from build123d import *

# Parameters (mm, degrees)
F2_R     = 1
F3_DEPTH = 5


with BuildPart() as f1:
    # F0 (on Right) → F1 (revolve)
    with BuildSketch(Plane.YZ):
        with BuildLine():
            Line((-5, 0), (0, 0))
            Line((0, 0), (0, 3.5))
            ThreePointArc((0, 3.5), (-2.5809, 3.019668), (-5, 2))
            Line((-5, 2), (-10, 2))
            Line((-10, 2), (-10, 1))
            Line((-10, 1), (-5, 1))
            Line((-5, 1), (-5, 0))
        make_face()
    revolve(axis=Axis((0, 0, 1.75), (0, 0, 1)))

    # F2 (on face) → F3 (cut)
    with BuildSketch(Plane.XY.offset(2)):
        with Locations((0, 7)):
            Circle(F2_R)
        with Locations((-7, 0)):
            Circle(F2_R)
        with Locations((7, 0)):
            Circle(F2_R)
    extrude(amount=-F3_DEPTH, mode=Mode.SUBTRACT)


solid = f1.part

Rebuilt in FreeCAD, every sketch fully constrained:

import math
import FreeCAD as App
import Part
import Sketcher
from FreeCAD import Vector

doc = App.newDocument("Part")
body = doc.addObject("PartDesign::Body", "Body")

# Sketch on YZ plane
sketch1 = body.newObject("Sketcher::SketchObject", "Sketch")
sketch1.AttachmentSupport = (doc.getObject("YZ_Plane"), [""])
sketch1.MapMode = "FlatFace"
sketch1.addGeometry(Part.LineSegment(Vector(-5, 0, 0), Vector(0, 0, 0)), False)
sketch1.addGeometry(Part.LineSegment(Vector(0, 0, 0), Vector(0, 3.5, 0)), False)
sketch1.addGeometry(Part.ArcOfCircle(Part.Circle(Vector(0.9, -8.7, 0), Vector(0, 0, 1), 12.2), math.radians(94), math.radians(119)), False)
sketch1.addGeometry(Part.LineSegment(Vector(-5, 2, 0), Vector(-10, 2, 0)), False)
sketch1.addGeometry(Part.LineSegment(Vector(-10, 2, 0), Vector(-10, 1, 0)), False)
sketch1.addGeometry(Part.LineSegment(Vector(-10, 1, 0), Vector(-5, 1, 0)), False)
sketch1.addGeometry(Part.LineSegment(Vector(-5, 1, 0), Vector(-5, 0, 0)), False)
sketch1.addConstraint(Sketcher.Constraint("Coincident", 0, 2, 1, 1))
sketch1.addConstraint(Sketcher.Constraint("Coincident", 1, 2, 2, 1))
sketch1.addConstraint(Sketcher.Constraint("Coincident", 2, 2, 3, 1))
sketch1.addConstraint(Sketcher.Constraint("Coincident", 3, 2, 4, 1))
sketch1.addConstraint(Sketcher.Constraint("Coincident", 4, 2, 5, 1))
sketch1.addConstraint(Sketcher.Constraint("Coincident", 5, 2, 6, 1))
sketch1.addConstraint(Sketcher.Constraint("Coincident", 6, 2, 0, 1))
sketch1.addConstraint(Sketcher.Constraint("Horizontal", 0))
sketch1.addConstraint(Sketcher.Constraint("Vertical", 1))
sketch1.addConstraint(Sketcher.Constraint("Horizontal", 3))
sketch1.addConstraint(Sketcher.Constraint("Vertical", 4))
sketch1.addConstraint(Sketcher.Constraint("Horizontal", 5))
sketch1.addConstraint(Sketcher.Constraint("Vertical", 6))
sketch1.addConstraint(Sketcher.Constraint("Coincident", 0, 2, -1, 1))
sketch1.addConstraint(Sketcher.Constraint("Vertical", 2, 2, 5, 2))
sketch1.addConstraint(Sketcher.Constraint("Equal", 0, 3))
sketch1.addConstraint(Sketcher.Constraint("Equal", 4, 6))
sketch1.addConstraint(Sketcher.Constraint("DistanceX", 0, 1, 0, 2, 5.0))
sketch1.addConstraint(Sketcher.Constraint("DistanceY", 4, 2, 4, 1, 1.0))
sketch1.addConstraint(Sketcher.Constraint("DistanceY", 1, 1, 1, 2, 3.5))
sketch1.addConstraint(Sketcher.Constraint("Radius", 2, 12.239341))
revolution = body.newObject("PartDesign::Revolution", "Revolution")
revolution.Profile = sketch1
revolution.ReferenceAxis = (sketch1, ["V_Axis"])
revolution.Angle = 360

# Sketch on XY plane
sketch2 = body.newObject("Sketcher::SketchObject", "Sketch001")
sketch2.AttachmentSupport = (doc.getObject("XY_Plane"), [""])
sketch2.MapMode = "FlatFace"
sketch2.AttachmentOffset = App.Placement(Vector(0, 0, 2), App.Rotation())
sketch2.addGeometry(Part.Circle(Vector(0, 7, 0), Vector(0, 0, 1), 1), False)
sketch2.addGeometry(Part.Circle(Vector(-7, 0, 0), Vector(0, 0, 1), 1), False)
sketch2.addGeometry(Part.Circle(Vector(7, 0, 0), Vector(0, 0, 1), 1), False)
sketch2.addConstraint(Sketcher.Constraint("Equal", 0, 1))
sketch2.addConstraint(Sketcher.Constraint("Equal", 1, 2))
sketch2.addConstraint(Sketcher.Constraint("Symmetric", 1, 3, 2, 3, -1, 1))
sketch2.addConstraint(Sketcher.Constraint("PointOnObject", 0, 3, -2))
sketch2.addConstraint(Sketcher.Constraint("PointOnObject", 1, 3, -1))
sketch2.addConstraint(Sketcher.Constraint("Diameter", 0, 2.0))
sketch2.addConstraint(Sketcher.Constraint("DistanceY", -1, 1, 0, 3, 7.0))
sketch2.addConstraint(Sketcher.Constraint("DistanceX", 1, 3, -1, 1, 7.0))
pocket1 = body.newObject("PartDesign::Pocket", "Pocket")
pocket1.Profile = sketch2
pocket1.Length = 5

doc.recompute()
